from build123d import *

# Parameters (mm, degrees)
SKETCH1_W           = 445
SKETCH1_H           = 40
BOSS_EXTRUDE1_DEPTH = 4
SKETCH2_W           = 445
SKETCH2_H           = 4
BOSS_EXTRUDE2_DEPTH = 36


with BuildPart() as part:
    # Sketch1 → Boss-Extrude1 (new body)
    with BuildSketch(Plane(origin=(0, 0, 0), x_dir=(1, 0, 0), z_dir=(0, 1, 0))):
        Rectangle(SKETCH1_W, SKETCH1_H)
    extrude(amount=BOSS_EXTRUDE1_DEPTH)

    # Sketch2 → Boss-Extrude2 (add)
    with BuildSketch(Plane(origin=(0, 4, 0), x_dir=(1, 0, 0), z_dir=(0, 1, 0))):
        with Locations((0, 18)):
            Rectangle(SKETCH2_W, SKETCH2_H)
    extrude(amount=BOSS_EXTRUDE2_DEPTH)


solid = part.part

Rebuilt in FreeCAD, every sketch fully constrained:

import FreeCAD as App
import Part
import Sketcher

V = App.Vector
Q = App.Units.Quantity


def add_polygon(sketch, points):
    """Adds a closed chain of lines whose ends are joined by coincident constraints."""
    first, n = sketch.GeometryCount, len(points)
    for a, b in zip(points, points[1:] + points[:1]):
        sketch.addGeometry(Part.LineSegment(App.Vector(*a, 0), App.Vector(*b, 0)), False)
    for i in range(n):
        sketch.addConstraint(Sketcher.Constraint("Coincident", first + i, 2, first + (i + 1) % n, 1))

doc = App.newDocument("Part")
params = doc.addObject("Spreadsheet::Sheet", "Params")
for row, (alias, value) in enumerate([
    ("sketch1_width", "445 mm"),
    ("sketch1_height", "40 mm"),
    ("pad1_length", "4 mm"),
    ("sketch2_width", "445 mm"),
    ("sketch2_height", "4 mm"),
    ("pad2_length", "36 mm"),
], start=1):
    params.set(f"A{row}", alias)
    params.set(f"B{row}", "=" + value)
    params.setAlias(f"B{row}", alias)

body = doc.addObject("PartDesign::Body", "Body")

# Sketch on XZ plane
sketch1 = body.newObject("Sketcher::SketchObject", "Sketch")
sketch1.AttachmentSupport = (doc.getObject("XZ_Plane"), [""])
sketch1.MapMode = "FlatFace"
add_polygon(sketch1, [(-222, -20), (-222, 20), (222, 20), (222, -20)])  # lines 0-3
sketch1.addConstraint([
    Sketcher.Constraint("Vertical", 0),
    Sketcher.Constraint("Horizontal", 1),
    Sketcher.Constraint("Vertical", 2),
    Sketcher.Constraint("Horizontal", 3),
    Sketcher.Constraint("Symmetric", 0, 2, 2, 2, -1, 1),
    Sketcher.Constraint("DistanceX", 1, 1, 1, 2, Q("445 mm")),
    Sketcher.Constraint("DistanceY", 0, 1, 0, 2, Q("40 mm")),
])
sketch1.setExpression("Constraints[9]", "Params.sketch1_width")
sketch1.setExpression("Constraints[10]", "Params.sketch1_height")
pad1 = body.newObject("PartDesign::Pad", "Pad")
pad1.Profile = sketch1
pad1.setExpression("Length", "Params.pad1_length")
pad1.Reversed = True

# Sketch on XZ plane
sketch2 = body.newObject("Sketcher::SketchObject", "Sketch001")
sketch2.AttachmentSupport = (doc.getObject("XZ_Plane"), [""])
sketch2.MapMode = "FlatFace"
sketch2.AttachmentOffset = App.Placement(V(0, 0, -4), App.Rotation())
add_polygon(sketch2, [(-222.5, -20), (-222.5, -16), (222.5, -16), (222.5, -20)])  # lines 0-3
sketch2.addConstraint([
    Sketcher.Constraint("Vertical", 0),
    Sketcher.Constraint("Horizontal", 1),
    Sketcher.Constraint("Vertical", 2),
    Sketcher.Constraint("Horizontal", 3),
    Sketcher.Constraint("DistanceX", 1, 1, 1, 2, Q("445 mm")),
    Sketcher.Constraint("DistanceY", 0, 1, 0, 2, Q("4 mm")),
    Sketcher.Constraint("DistanceY", 0, 2, -1, 1, Q("16 mm")),
    Sketcher.Constraint("DistanceX", 0, 2, -1, 1, Q("222.5 mm")),
])
sketch2.setExpression("Constraints[8]", "Params.sketch2_width")
sketch2.setExpression("Constraints[9]", "Params.sketch2_height")
pad2 = body.newObject("PartDesign::Pad", "Pad001")
pad2.Profile = sketch2
pad2.setExpression("Length", "Params.pad2_length")
pad2.Reversed = True

doc.recompute()
